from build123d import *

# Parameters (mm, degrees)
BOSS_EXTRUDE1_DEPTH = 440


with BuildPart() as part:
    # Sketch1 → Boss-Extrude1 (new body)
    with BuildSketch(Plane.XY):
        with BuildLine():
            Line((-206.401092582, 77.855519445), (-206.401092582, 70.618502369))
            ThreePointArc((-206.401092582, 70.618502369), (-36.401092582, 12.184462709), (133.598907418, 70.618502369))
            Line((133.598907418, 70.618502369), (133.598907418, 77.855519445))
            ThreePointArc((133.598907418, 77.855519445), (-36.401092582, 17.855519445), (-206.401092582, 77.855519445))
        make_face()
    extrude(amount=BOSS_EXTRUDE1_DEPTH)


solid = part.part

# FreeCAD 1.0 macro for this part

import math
import FreeCAD as App
import Part
import Sketcher

doc = App.newDocument("Part")
body = doc.addObject("PartDesign::Body", "Body")

sketch1 = body.newObject("Sketcher::SketchObject", "Sketch")
sketch1.AttachmentSupport = (doc.getObject("XY_Plane"), [""])
sketch1.MapMode = "FlatFace"
sketch1.addGeometry([
    Part.LineSegment(App.Vector(-206.401093, 77.855519, 0), App.Vector(-206.401093, 70.618502, 0)),
    Part.ArcOfCircle(Part.Circle(App.Vector(-36.401093, 288.688853, 0), App.Vector(0, 0, 1), 276.50439), math.radians(-127.93873), math.radians(-52.06127)),
    Part.LineSegment(App.Vector(133.598907, 70.618502, 0), App.Vector(133.598907, 77.855519, 0)),
    Part.ArcOfCircle(Part.Circle(App.Vector(-36.401093, 288.688853, 0), App.Vector(0, 0, 1), 270.833333), math.radians(-128.88007), math.radians(-51.11993)),
], False)
sketch1.addConstraint([
    Sketcher.Constraint("Coincident", 0, 2, 1, 1),
    Sketcher.Constraint("Coincident", 1, 2, 2, 1),
    Sketcher.Constraint("Coincident", 2, 2, 3, 2),
    Sketcher.Constraint("Coincident", 3, 1, 0, 1),
    Sketcher.Constraint("Vertical", 0),
    Sketcher.Constraint("Vertical", 2),
    Sketcher.Constraint("Coincident", 3, 3, 1, 3),
    Sketcher.Constraint("Horizontal", 0, 2, 1, 2),
    Sketcher.Constraint("DistanceX", 0, 2, 3, 3, 170.0),
    Sketcher.Constraint("Radius", 1, 276.50439),
    Sketcher.Constraint("Radius", 3, 270.833333),
    Sketcher.Constraint("DistanceY", -1, 1, 2, 2, 77.855519),
    Sketcher.Constraint("DistanceX", 1, 3, -1, 1, 36.401093),
])
pad1 = body.newObject("PartDesign::Pad", "Pad")
pad1.Profile = sketch1
pad1.Length = 440

doc.recompute()
